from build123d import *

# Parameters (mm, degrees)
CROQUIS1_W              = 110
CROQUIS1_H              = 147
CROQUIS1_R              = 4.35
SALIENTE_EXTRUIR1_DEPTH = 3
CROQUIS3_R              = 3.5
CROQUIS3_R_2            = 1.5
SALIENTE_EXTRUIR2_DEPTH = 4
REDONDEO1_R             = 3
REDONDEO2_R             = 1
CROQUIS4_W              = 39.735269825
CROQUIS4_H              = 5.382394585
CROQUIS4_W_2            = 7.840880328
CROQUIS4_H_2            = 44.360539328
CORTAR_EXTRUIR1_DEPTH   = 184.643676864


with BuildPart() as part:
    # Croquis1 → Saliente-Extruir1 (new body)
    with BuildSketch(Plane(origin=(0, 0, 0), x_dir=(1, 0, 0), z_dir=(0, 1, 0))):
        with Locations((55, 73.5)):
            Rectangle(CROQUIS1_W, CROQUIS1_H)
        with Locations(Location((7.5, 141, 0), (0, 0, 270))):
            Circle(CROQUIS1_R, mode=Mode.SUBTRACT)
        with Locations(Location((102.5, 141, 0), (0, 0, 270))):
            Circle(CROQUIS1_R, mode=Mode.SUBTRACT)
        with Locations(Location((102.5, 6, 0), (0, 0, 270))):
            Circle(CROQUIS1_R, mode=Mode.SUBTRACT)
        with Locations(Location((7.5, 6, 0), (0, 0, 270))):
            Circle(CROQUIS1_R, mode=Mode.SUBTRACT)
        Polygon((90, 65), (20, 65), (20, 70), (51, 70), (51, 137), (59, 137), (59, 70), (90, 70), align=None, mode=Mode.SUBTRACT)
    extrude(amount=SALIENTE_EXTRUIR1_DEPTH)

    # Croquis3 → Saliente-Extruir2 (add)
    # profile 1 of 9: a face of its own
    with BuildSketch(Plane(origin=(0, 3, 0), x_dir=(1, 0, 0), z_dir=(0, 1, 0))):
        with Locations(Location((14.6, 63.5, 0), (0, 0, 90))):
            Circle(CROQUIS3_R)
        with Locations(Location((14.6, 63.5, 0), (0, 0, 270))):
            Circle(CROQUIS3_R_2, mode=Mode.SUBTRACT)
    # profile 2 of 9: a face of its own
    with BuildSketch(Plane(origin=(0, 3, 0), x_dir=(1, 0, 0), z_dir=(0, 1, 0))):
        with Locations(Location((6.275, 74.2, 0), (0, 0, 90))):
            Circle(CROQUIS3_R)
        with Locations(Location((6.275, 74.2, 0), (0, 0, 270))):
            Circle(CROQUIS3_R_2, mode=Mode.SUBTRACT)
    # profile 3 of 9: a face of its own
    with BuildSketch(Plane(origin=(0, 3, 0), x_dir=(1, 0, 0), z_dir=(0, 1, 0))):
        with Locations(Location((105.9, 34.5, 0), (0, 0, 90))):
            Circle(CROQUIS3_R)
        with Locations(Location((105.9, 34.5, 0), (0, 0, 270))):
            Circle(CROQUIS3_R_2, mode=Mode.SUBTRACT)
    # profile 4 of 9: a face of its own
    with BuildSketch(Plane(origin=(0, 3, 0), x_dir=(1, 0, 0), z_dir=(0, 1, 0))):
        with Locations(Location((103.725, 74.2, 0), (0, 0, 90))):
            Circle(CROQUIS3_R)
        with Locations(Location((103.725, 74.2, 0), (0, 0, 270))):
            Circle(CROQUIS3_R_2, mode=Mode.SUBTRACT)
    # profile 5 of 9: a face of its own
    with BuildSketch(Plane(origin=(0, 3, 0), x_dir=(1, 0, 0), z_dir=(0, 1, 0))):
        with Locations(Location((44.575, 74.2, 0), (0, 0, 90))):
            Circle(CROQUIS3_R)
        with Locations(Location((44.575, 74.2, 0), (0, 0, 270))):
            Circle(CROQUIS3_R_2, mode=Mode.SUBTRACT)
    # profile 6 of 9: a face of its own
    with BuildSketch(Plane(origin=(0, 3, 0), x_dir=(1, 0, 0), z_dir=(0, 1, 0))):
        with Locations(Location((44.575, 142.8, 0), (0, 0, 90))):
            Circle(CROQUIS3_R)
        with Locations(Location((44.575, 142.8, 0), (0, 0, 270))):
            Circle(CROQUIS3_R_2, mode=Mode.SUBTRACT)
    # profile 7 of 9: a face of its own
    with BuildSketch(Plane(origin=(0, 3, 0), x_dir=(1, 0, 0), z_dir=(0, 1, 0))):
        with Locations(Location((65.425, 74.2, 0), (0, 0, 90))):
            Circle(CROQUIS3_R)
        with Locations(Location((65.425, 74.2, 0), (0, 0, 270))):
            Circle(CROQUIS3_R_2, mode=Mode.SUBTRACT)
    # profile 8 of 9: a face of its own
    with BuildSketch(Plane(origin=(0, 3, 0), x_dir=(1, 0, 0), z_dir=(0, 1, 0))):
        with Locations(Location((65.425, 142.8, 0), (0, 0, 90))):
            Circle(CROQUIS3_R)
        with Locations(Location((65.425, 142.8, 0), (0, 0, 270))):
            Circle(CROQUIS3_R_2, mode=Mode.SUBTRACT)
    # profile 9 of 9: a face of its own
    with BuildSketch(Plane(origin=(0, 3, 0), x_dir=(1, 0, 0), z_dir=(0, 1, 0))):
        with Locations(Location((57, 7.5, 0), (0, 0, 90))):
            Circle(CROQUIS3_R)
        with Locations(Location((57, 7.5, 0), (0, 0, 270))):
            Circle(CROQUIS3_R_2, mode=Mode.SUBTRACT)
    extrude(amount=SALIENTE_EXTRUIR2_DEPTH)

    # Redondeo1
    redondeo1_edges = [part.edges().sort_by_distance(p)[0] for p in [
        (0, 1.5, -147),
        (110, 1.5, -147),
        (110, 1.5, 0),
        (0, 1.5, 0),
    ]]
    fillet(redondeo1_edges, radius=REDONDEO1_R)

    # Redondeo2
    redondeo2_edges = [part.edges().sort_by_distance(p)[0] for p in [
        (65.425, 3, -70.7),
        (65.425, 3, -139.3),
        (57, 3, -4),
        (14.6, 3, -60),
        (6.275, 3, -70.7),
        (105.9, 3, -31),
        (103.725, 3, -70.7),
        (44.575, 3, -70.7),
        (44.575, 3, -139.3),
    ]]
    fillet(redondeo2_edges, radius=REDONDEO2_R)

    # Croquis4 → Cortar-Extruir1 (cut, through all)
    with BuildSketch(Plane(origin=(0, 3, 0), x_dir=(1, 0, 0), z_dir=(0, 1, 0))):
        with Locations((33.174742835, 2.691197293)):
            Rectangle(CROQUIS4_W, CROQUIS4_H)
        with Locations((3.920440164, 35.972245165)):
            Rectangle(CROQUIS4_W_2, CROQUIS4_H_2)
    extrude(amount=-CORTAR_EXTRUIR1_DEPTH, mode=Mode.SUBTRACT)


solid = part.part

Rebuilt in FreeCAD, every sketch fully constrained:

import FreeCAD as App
import Part
import Sketcher
from FreeCAD import Vector


def edges_at(feature, points):
    """Names of the edges that pass closest to the given points."""
    edges = feature.Shape.Edges
    near = lambda p: min(range(len(edges)), key=lambda i: edges[i].distToShape(Part.Vertex(*p))[0])
    return sorted({f"Edge{near(p) + 1}" for p in points})

doc = App.newDocument("Part")
body = doc.addObject("PartDesign::Body", "Body")

# Sketch on XZ plane
sketch1 = body.newObject("Sketcher::SketchObject", "Sketch")
sketch1.AttachmentSupport = (doc.getObject("XZ_Plane"), [""])
sketch1.MapMode = "FlatFace"
sketch1.addGeometry([
    Part.LineSegment(Vector(0, -147, 0), Vector(0, 0, 0)),  # 0
    Part.LineSegment(Vector(0, 0, 0), Vector(110, 0, 0)),  # 1
    Part.LineSegment(Vector(110, 0, 0), Vector(110, -147, 0)),  # 2
    Part.LineSegment(Vector(110, -147, 0), Vector(0, -147, 0)),  # 3
    Part.Circle(Vector(7.5, -6, 0), Vector(0, 0, 1), 4.3),  # 4
    Part.Circle(Vector(102.5, -6, 0), Vector(0, 0, 1), 4.3),  # 5
    Part.Circle(Vector(7.5, -141, 0), Vector(0, 0, 1), 4.3),  # 6
    Part.LineSegment(Vector(90, -70, 0), Vector(90, -65, 0)),  # 7
    Part.LineSegment(Vector(90, -65, 0), Vector(20, -65, 0)),  # 8
    Part.LineSegment(Vector(20, -65, 0), Vector(20, -70, 0)),  # 9
    Part.LineSegment(Vector(20, -70, 0), Vector(51, -70, 0)),  # 10
    Part.LineSegment(Vector(51, -70, 0), Vector(51, -137, 0)),  # 11
    Part.LineSegment(Vector(51, -137, 0), Vector(59, -137, 0)),  # 12
    Part.LineSegment(Vector(59, -137, 0), Vector(59, -70, 0)),  # 13
    Part.LineSegment(Vector(59, -70, 0), Vector(90, -70, 0)),  # 14
    Part.Circle(Vector(102.5, -141, 0), Vector(0, 0, 1), 4.3),  # 15
], False)
sketch1.addConstraint([
    Sketcher.Constraint("Coincident", 0, 2, 1, 1),
    Sketcher.Constraint("Coincident", 1, 2, 2, 1),
    Sketcher.Constraint("Coincident", 2, 2, 3, 1),
    Sketcher.Constraint("Coincident", 3, 2, 0, 1),
    Sketcher.Constraint("Coincident", 7, 2, 8, 1),
    Sketcher.Constraint("Coincident", 8, 2, 9, 1),
    Sketcher.Constraint("Coincident", 9, 2, 10, 1),
    Sketcher.Constraint("Coincident", 10, 2, 11, 1),
    Sketcher.Constraint("Coincident", 11, 2, 12, 1),
    Sketcher.Constraint("Coincident", 12, 2, 13, 1),
    Sketcher.Constraint("Coincident", 13, 2, 14, 1),
    Sketcher.Constraint("Coincident", 14, 2, 7, 1),
    Sketcher.Constraint("Vertical", 0),
    Sketcher.Constraint("Horizontal", 1),
    Sketcher.Constraint("Vertical", 2),
    Sketcher.Constraint("Horizontal", 3),
    Sketcher.Constraint("Vertical", 7),
    Sketcher.Constraint("Horizontal", 8),
    Sketcher.Constraint("Vertical", 9),
    Sketcher.Constraint("Horizontal", 10),
    Sketcher.Constraint("Vertical", 11),
    Sketcher.Constraint("Horizontal", 12),
    Sketcher.Constraint("Vertical", 13),
    Sketcher.Constraint("Horizontal", 14),
    Sketcher.Constraint("Coincident", 0, 2, -1, 1),
    Sketcher.Constraint("Equal", 4, 5),
    Sketcher.Constraint("Equal", 5, 6),
    Sketcher.Constraint("Equal", 6, 15),
    Sketcher.Constraint("Horizontal", 4, 3, 5, 3),
    Sketcher.Constraint("Horizontal", 6, 3, 15, 3),
    Sketcher.Constraint("Horizontal", 10, 2, 13, 2),
    Sketcher.Constraint("Vertical", 4, 3, 6, 3),
    Sketcher.Constraint("Vertical", 5, 3, 15, 3),
    Sketcher.Constraint("Equal", 10, 14),
    Sketcher.Constraint("Diameter", 4, 8.7),
    Sketcher.Constraint("DistanceX", 1, 1, 1, 2, 110.0),
    Sketcher.Constraint("DistanceX", 8, 2, 8, 1, 70.0),
    Sketcher.Constraint("DistanceX", 10, 1, 10, 2, 31.0),
    Sketcher.Constraint("DistanceY", 0, 1, 0, 2, 147.0),
    Sketcher.Constraint("DistanceY", 7, 1, 7, 2, 5.0),
    Sketcher.Constraint("DistanceY", 11, 2, 11, 1, 67.0),
    Sketcher.Constraint("DistanceY", 4, 3, -1, 1, 6.0),
    Sketcher.Constraint("DistanceY", 6, 3, -1, 1, 141.0),
    Sketcher.Constraint("DistanceX", -1, 1, 7, 2, 90.0),
    Sketcher.Constraint("DistanceY", 7, 2, -1, 1, 65.0),
    Sketcher.Constraint("DistanceX", 4, 3, 5, 3, 95.0),
    Sketcher.Constraint("DistanceX", -1, 1, 4, 3, 7.5),
])
pad1 = body.newObject("PartDesign::Pad", "Pad")
pad1.Profile = sketch1
pad1.Length = 3
pad1.Reversed = True

# Sketch on XZ plane
sketch2 = body.newObject("Sketcher::SketchObject", "Sketch001")
sketch2.AttachmentSupport = (doc.getObject("XZ_Plane"), [""])
sketch2.MapMode = "FlatFace"
sketch2.AttachmentOffset = App.Placement(Vector(0, 0, -3), App.Rotation())
sketch2.addGeometry([
    Part.Circle(Vector(14.6, -63.5, 0), Vector(0, 0, 1), 3.5),  # 0
    Part.Circle(Vector(14.6, -63.5, 0), Vector(0, 0, 1), 1.5),  # 1
    Part.Circle(Vector(6.3, -74.2, 0), Vector(0, 0, 1), 3.5),  # 2
    Part.Circle(Vector(6.3, -74.2, 0), Vector(0, 0, 1), 1.5),  # 3
    Part.Circle(Vector(105.9, -34.5, 0), Vector(0, 0, 1), 3.5),  # 4
    Part.Circle(Vector(105.9, -34.5, 0), Vector(0, 0, 1), 1.5),  # 5
    Part.Circle(Vector(103.7, -74.2, 0), Vector(0, 0, 1), 3.5),  # 6
    Part.Circle(Vector(103.7, -74.2, 0), Vector(0, 0, 1), 1.5),  # 7
    Part.Circle(Vector(44.6, -74.2, 0), Vector(0, 0, 1), 3.5),  # 8
    Part.Circle(Vector(44.6, -74.2, 0), Vector(0, 0, 1), 1.5),  # 9
    Part.Circle(Vector(44.6, -142.8, 0), Vector(0, 0, 1), 3.5),  # 10
    Part.Circle(Vector(44.6, -142.8, 0), Vector(0, 0, 1), 1.5),  # 11
    Part.Circle(Vector(65.4, -74.2, 0), Vector(0, 0, 1), 3.5),  # 12
    Part.Circle(Vector(65.4, -74.2, 0), Vector(0, 0, 1), 1.5),  # 13
    Part.Circle(Vector(65.4, -142.8, 0), Vector(0, 0, 1), 3.5),  # 14
    Part.Circle(Vector(65.4, -142.8, 0), Vector(0, 0, 1), 1.5),  # 15
    Part.Circle(Vector(57, -7.5, 0), Vector(0, 0, 1), 3.5),  # 16
    Part.Circle(Vector(57, -7.5, 0), Vector(0, 0, 1), 1.5),  # 17
], False)
sketch2.addConstraint([
    Sketcher.Constraint("Coincident", 1, 3, 0, 3),
    Sketcher.Constraint("Coincident", 3, 3, 2, 3),
    Sketcher.Constraint("Coincident", 5, 3, 4, 3),
    Sketcher.Constraint("Coincident", 7, 3, 6, 3),
    Sketcher.Constraint("Coincident", 9, 3, 8, 3),
    Sketcher.Constraint("Coincident", 11, 3, 10, 3),
    Sketcher.Constraint("Coincident", 13, 3, 12, 3),
    Sketcher.Constraint("Coincident", 15, 3, 14, 3),
    Sketcher.Constraint("Coincident", 17, 3, 16, 3),
    Sketcher.Constraint("Equal", 0, 2),
    Sketcher.Constraint("Equal", 1, 3),
    Sketcher.Constraint("Equal", 2, 4),
    Sketcher.Constraint("Equal", 3, 5),
    Sketcher.Constraint("Equal", 4, 6),
    Sketcher.Constraint("Equal", 5, 7),
    Sketcher.Constraint("Equal", 6, 8),
    Sketcher.Constraint("Equal", 7, 9),
    Sketcher.Constraint("Equal", 8, 10),
    Sketcher.Constraint("Equal", 9, 11),
    Sketcher.Constraint("Equal", 10, 12),
    Sketcher.Constraint("Equal", 11, 13),
    Sketcher.Constraint("Equal", 12, 14),
    Sketcher.Constraint("Equal", 13, 15),
    Sketcher.Constraint("Equal", 14, 16),
    Sketcher.Constraint("Equal", 15, 17),
    Sketcher.Constraint("Horizontal", 3, 3, 6, 3),
    Sketcher.Constraint("Horizontal", 7, 3, 8, 3),
    Sketcher.Constraint("Horizontal", 9, 3, 12, 3),
    Sketcher.Constraint("Horizontal", 11, 3, 14, 3),
    Sketcher.Constraint("Vertical", 9, 3, 10, 3),
    Sketcher.Constraint("Vertical", 13, 3, 14, 3),
    Sketcher.Constraint("Diameter", 0, 7.0),
    Sketcher.Constraint("Diameter", 1, 3.0),
    Sketcher.Constraint("DistanceX", -1, 1, 16, 3, 57.0),
    Sketcher.Constraint("DistanceY", 0, 3, 4, 3, 29.0),
    Sketcher.Constraint("DistanceY", 4, 3, 16, 3, 27.0),
    Sketcher.Constraint("DistanceX", -1, 1, 0, 3, 14.6),
    Sketcher.Constraint("DistanceY", 0, 3, -1, 1, 63.5),
    Sketcher.Constraint("DistanceY", 2, 3, -1, 1, 74.2),
    Sketcher.Constraint("DistanceX", -1, 1, 4, 3, 105.9),
    Sketcher.Constraint("DistanceY", 10, 3, -1, 1, 142.8),
    Sketcher.Constraint("DistanceX", 2, 3, 8, 3, 38.3),
    Sketcher.Constraint("DistanceX", 12, 3, 6, 3, 38.3),
    Sketcher.Constraint("DistanceX", 2, 3, 6, 3, 97.45),
    Sketcher.Constraint("DistanceX", -1, 1, 2, 3, 6.275),
])
pad2 = body.newObject("PartDesign::Pad", "Pad001")
pad2.Profile = sketch2
pad2.Length = 4
pad2.Reversed = True
doc.recompute()

fillet = body.newObject("PartDesign::Fillet", "Fillet")
fillet.Base = (pad2, edges_at(pad2, [
    (0, 1.5, -147),
    (110, 1.5, -147),
    (110, 1.5, 0),
    (0, 1.5, 0),
]))
fillet.Radius = 3
doc.recompute()

fillet2 = body.newObject("PartDesign::Fillet", "Fillet001")
fillet2.Base = (fillet, edges_at(fillet, [
    (65.425, 3, -70.7),
    (65.425, 3, -139.3),
    (57, 3, -4),
    (14.6, 3, -60),
    (6.275, 3, -70.7),
    (105.9, 3, -31),
    (103.725, 3, -70.7),
    (44.575, 3, -70.7),
    (44.575, 3, -139.3),
]))
fillet2.Radius = 1

# Sketch on XZ plane
sketch3 = body.newObject("Sketcher::SketchObject", "Sketch002")
sketch3.AttachmentSupport = (doc.getObject("XZ_Plane"), [""])
sketch3.MapMode = "FlatFace"
sketch3.AttachmentOffset = App.Placement(Vector(0, 0, -3), App.Rotation())
sketch3.addGeometry([
    Part.LineSegment(Vector(13, -5, 0), Vector(13, 0, 0)),  # 0
    Part.LineSegment(Vector(13, 0, 0), Vector(53, 0, 0)),  # 1
    Part.LineSegment(Vector(53, 0, 0), Vector(53, -5, 0)),  # 2
    Part.LineSegment(Vector(53, -5, 0), Vector(13, -5, 0)),  # 3
    Part.LineSegment(Vector(0, -58, 0), Vector(0, -14, 0)),  # 4
    Part.LineSegment(Vector(0, -14, 0), Vector(8, -14, 0)),  # 5
    Part.LineSegment(Vector(8, -14, 0), Vector(8, -58, 0)),  # 6
    Part.LineSegment(Vector(8, -58, 0), Vector(0, -58, 0)),  # 7
], False)
sketch3.addConstraint([
    Sketcher.Constraint("Coincident", 0, 2, 1, 1),
    Sketcher.Constraint("Coincident", 1, 2, 2, 1),
    Sketcher.Constraint("Coincident", 2, 2, 3, 1),
    Sketcher.Constraint("Coincident", 3, 2, 0, 1),
    Sketcher.Constraint("Coincident", 4, 2, 5, 1),
    Sketcher.Constraint("Coincident", 5, 2, 6, 1),
    Sketcher.Constraint("Coincident", 6, 2, 7, 1),
    Sketcher.Constraint("Coincident", 7, 2, 4, 1),
    Sketcher.Constraint("Vertical", 0),
    Sketcher.Constraint("Horizontal", 1),
    Sketcher.Constraint("Vertical", 2),
    Sketcher.Constraint("Horizontal", 3),
    Sketcher.Constraint("Vertical", 4),
    Sketcher.Constraint("Horizontal", 5),
    Sketcher.Constraint("Vertical", 6),
    Sketcher.Constraint("Horizontal", 7),
    Sketcher.Constraint("PointOnObject", 0, 2, -1),
    Sketcher.Constraint("PointOnObject", 4, 2, -2),
    Sketcher.Constraint("DistanceX", 1, 1, 1, 2, 39.73527),
    Sketcher.Constraint("DistanceX", 5, 1, 5, 2, 7.84088),
    Sketcher.Constraint("DistanceY", 4, 1, 4, 2, 44.360539),
    Sketcher.Constraint("DistanceY", 0, 1, 0, 2, 5.382395),
    Sketcher.Constraint("DistanceY", 4, 2, 3, 2, 8.409581),
    Sketcher.Constraint("DistanceX", -1, 1, 0, 2, 13.307108),
])
pocket1 = body.newObject("PartDesign::Pocket", "Pocket")
pocket1.Profile = sketch3
pocket1.Type = "ThroughAll"
pocket1.Reversed = True

doc.recompute()
